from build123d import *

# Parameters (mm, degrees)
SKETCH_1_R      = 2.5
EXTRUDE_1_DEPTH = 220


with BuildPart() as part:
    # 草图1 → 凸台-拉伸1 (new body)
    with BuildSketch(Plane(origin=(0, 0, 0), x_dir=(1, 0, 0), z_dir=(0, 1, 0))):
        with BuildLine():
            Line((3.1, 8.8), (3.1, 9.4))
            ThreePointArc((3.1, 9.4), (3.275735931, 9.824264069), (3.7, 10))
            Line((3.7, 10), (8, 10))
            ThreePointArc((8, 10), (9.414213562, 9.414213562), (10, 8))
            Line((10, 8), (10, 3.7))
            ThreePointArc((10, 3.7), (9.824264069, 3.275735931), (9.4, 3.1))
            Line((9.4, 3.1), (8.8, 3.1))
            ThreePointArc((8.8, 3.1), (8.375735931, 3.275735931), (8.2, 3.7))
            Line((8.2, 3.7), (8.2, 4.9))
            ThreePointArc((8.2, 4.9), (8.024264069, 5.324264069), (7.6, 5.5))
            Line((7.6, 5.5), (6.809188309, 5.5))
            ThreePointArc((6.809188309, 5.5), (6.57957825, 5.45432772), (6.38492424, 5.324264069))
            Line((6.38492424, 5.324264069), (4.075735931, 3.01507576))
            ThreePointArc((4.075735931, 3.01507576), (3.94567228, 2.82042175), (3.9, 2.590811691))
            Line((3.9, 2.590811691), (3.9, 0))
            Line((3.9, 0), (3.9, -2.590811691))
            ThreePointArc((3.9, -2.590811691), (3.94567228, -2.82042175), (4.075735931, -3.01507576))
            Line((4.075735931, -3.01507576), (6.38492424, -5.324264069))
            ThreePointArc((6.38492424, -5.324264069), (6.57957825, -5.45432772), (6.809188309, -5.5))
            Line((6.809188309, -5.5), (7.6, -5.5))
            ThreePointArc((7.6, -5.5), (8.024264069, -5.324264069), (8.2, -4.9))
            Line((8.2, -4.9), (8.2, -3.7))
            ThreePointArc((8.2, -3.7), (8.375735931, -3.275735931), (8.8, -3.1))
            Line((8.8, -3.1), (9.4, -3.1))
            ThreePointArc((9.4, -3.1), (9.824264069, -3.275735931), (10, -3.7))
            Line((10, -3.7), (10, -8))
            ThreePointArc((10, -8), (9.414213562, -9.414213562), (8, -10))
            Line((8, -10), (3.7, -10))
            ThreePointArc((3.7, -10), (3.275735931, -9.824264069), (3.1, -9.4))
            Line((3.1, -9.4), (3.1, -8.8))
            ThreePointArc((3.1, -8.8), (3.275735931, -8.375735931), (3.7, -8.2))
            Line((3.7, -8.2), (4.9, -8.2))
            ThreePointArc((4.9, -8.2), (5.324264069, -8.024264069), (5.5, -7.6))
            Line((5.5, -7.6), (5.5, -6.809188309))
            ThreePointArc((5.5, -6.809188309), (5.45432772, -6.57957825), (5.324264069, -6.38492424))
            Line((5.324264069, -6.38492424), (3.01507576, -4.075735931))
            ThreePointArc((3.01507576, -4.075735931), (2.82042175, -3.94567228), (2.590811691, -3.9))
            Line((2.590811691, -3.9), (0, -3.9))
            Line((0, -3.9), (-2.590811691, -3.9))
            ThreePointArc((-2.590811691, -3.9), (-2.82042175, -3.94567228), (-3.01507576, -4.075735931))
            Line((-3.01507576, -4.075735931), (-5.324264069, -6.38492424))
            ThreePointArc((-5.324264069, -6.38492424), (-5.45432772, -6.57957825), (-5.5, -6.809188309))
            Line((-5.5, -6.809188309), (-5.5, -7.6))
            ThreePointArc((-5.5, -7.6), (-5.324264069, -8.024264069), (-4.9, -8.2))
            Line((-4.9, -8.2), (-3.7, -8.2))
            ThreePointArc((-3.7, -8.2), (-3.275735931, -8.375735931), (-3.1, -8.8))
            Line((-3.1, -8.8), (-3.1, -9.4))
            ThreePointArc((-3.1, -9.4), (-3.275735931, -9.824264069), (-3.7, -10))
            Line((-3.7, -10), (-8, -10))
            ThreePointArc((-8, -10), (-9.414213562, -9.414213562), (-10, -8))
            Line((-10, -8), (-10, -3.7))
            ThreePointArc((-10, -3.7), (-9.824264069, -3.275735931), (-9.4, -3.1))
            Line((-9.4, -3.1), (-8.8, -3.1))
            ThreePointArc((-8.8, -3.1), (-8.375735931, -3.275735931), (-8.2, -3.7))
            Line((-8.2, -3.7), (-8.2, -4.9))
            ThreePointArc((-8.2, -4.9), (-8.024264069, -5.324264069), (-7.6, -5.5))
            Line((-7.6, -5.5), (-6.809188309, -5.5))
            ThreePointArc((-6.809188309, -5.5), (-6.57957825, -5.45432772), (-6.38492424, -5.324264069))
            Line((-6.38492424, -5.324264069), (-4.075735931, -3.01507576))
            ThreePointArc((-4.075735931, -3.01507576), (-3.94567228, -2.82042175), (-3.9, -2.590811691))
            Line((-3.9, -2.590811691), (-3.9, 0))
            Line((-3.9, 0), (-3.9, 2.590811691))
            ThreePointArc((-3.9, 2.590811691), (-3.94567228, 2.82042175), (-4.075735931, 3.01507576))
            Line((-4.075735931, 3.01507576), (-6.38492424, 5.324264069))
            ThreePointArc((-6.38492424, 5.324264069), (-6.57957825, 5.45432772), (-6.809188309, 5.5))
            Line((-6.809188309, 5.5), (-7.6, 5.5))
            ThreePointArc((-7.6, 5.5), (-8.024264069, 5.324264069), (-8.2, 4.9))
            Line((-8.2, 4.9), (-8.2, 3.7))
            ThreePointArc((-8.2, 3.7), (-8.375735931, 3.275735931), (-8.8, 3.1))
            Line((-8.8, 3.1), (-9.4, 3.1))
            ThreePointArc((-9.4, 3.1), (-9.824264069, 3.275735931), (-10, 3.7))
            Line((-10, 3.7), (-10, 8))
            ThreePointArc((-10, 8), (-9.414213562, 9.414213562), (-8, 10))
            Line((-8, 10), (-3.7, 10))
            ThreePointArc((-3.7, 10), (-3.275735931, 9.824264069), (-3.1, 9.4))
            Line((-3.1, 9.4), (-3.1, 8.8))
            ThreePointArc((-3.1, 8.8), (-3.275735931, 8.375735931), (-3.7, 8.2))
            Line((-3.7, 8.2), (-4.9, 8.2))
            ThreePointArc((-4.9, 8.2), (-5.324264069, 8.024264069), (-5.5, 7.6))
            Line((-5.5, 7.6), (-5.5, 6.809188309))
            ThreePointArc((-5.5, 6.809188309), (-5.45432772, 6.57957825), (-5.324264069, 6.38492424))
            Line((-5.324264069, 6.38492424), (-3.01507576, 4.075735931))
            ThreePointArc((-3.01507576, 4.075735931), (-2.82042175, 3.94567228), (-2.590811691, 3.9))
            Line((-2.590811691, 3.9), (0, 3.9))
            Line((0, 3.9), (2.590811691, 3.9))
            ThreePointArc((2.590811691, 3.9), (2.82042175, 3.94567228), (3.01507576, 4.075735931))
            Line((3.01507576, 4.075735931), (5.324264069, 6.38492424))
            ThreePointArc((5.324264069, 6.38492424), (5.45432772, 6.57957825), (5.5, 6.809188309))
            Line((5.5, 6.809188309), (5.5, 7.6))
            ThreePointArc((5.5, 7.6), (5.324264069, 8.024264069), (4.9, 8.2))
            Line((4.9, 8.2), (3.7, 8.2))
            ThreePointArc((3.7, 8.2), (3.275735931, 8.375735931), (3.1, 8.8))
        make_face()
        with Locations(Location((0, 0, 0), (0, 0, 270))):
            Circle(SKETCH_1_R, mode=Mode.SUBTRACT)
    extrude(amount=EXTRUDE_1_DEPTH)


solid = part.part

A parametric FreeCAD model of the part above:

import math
import FreeCAD as App
import Part
import Sketcher
from FreeCAD import Vector
Q = App.Units.Quantity

doc = App.newDocument("Part")
body = doc.addObject("PartDesign::Body", "Body")

# Sketch on XZ plane
sketch1 = body.newObject("Sketcher::SketchObject", "Sketch")
sketch1.AttachmentSupport = (doc.getObject("XZ_Plane"), [""])
sketch1.MapMode = "FlatFace"
sketch1.addGeometry([
    Part.LineSegment(Vector(3.1, -9.4, 0), Vector(3.1, -8.8, 0)),  # 0
    Part.ArcOfCircle(Part.Circle(Vector(3.7, -8.8, 0), Vector(0, 0, 1), 0.6), math.radians(90), math.radians(180)),  # 1
    Part.LineSegment(Vector(3.7, -8.2, 0), Vector(4.9, -8.2, 0)),  # 2
    Part.ArcOfCircle(Part.Circle(Vector(4.9, -7.6, 0), Vector(0, 0, 1), 0.6), math.radians(-90), math.radians(0)),  # 3
    Part.LineSegment(Vector(5.5, -7.6, 0), Vector(5.5, -6.81, 0)),  # 4
    Part.ArcOfCircle(Part.Circle(Vector(4.9, -6.81, 0), Vector(0, 0, 1), 0.6), math.radians(0), math.radians(45)),  # 5
    Part.LineSegment(Vector(5.32, -6.38, 0), Vector(3.02, -4.08, 0)),  # 6
    Part.ArcOfCircle(Part.Circle(Vector(2.59, -4.5, 0), Vector(0, 0, 1), 0.6), math.radians(45), math.radians(90)),  # 7
    Part.LineSegment(Vector(2.59, -3.9, 0), Vector(-2.59, -3.9, 0)),  # 8
    Part.ArcOfCircle(Part.Circle(Vector(-2.59, -4.5, 0), Vector(0, 0, 1), 0.6), math.radians(90), math.radians(135)),  # 9
    Part.LineSegment(Vector(-3.02, -4.08, 0), Vector(-5.32, -6.38, 0)),  # 10
    Part.ArcOfCircle(Part.Circle(Vector(-4.9, -6.81, 0), Vector(0, 0, 1), 0.6), math.radians(135), math.radians(180)),  # 11
    Part.LineSegment(Vector(-5.5, -6.81, 0), Vector(-5.5, -7.6, 0)),  # 12
    Part.ArcOfCircle(Part.Circle(Vector(-4.9, -7.6, 0), Vector(0, 0, 1), 0.6), math.radians(180), math.radians(270)),  # 13
    Part.LineSegment(Vector(-4.9, -8.2, 0), Vector(-3.7, -8.2, 0)),  # 14
    Part.ArcOfCircle(Part.Circle(Vector(-3.7, -8.8, 0), Vector(0, 0, 1), 0.6), math.radians(0), math.radians(90)),  # 15
    Part.LineSegment(Vector(-3.1, -8.8, 0), Vector(-3.1, -9.4, 0)),  # 16
    Part.ArcOfCircle(Part.Circle(Vector(-3.7, -9.4, 0), Vector(0, 0, 1), 0.6), math.radians(-90), math.radians(0)),  # 17
    Part.LineSegment(Vector(-3.7, -10, 0), Vector(-8, -10, 0)),  # 18
    Part.ArcOfCircle(Part.Circle(Vector(-8, -8, 0), Vector(0, 0, 1), 2), math.radians(-180), math.radians(-90)),  # 19
    Part.LineSegment(Vector(-10, -8, 0), Vector(-10, -3.7, 0)),  # 20
    Part.ArcOfCircle(Part.Circle(Vector(-9.4, -3.7, 0), Vector(0, 0, 1), 0.6), math.radians(90), math.radians(180)),  # 21
    Part.LineSegment(Vector(-9.4, -3.1, 0), Vector(-8.8, -3.1, 0)),  # 22
    Part.ArcOfCircle(Part.Circle(Vector(-8.8, -3.7, 0), Vector(0, 0, 1), 0.6), math.radians(0), math.radians(90)),  # 23
    Part.LineSegment(Vector(-8.2, -3.7, 0), Vector(-8.2, -4.9, 0)),  # 24
    Part.ArcOfCircle(Part.Circle(Vector(-7.6, -4.9, 0), Vector(0, 0, 1), 0.6), math.radians(180), math.radians(270)),  # 25
    Part.LineSegment(Vector(-7.6, -5.5, 0), Vector(-6.81, -5.5, 0)),  # 26
    Part.ArcOfCircle(Part.Circle(Vector(-6.81, -4.9, 0), Vector(0, 0, 1), 0.6), math.radians(-90), math.radians(-45)),  # 27
    Part.LineSegment(Vector(-6.38, -5.32, 0), Vector(-4.08, -3.02, 0)),  # 28
    Part.ArcOfCircle(Part.Circle(Vector(-4.5, -2.59, 0), Vector(0, 0, 1), 0.6), math.radians(-45), math.radians(0)),  # 29
    Part.LineSegment(Vector(-3.9, -2.59, 0), Vector(-3.9, 2.59, 0)),  # 30
    Part.ArcOfCircle(Part.Circle(Vector(-4.5, 2.59, 0), Vector(0, 0, 1), 0.6), math.radians(0), math.radians(45)),  # 31
    Part.LineSegment(Vector(-4.08, 3.02, 0), Vector(-6.38, 5.32, 0)),  # 32
    Part.ArcOfCircle(Part.Circle(Vector(-6.81, 4.9, 0), Vector(0, 0, 1), 0.6), math.radians(45), math.radians(90)),  # 33
    Part.LineSegment(Vector(-6.81, 5.5, 0), Vector(-7.6, 5.5, 0)),  # 34
    Part.ArcOfCircle(Part.Circle(Vector(-7.6, 4.9, 0), Vector(0, 0, 1), 0.6), math.radians(90), math.radians(180)),  # 35
    Part.LineSegment(Vector(-8.2, 4.9, 0), Vector(-8.2, 3.7, 0)),  # 36
    Part.ArcOfCircle(Part.Circle(Vector(-8.8, 3.7, 0), Vector(0, 0, 1), 0.6), math.radians(-90), math.radians(0)),  # 37
    Part.LineSegment(Vector(-8.8, 3.1, 0), Vector(-9.4, 3.1, 0)),  # 38
    Part.ArcOfCircle(Part.Circle(Vector(-9.4, 3.7, 0), Vector(0, 0, 1), 0.6), math.radians(180), math.radians(270)),  # 39
    Part.LineSegment(Vector(-10, 3.7, 0), Vector(-10, 8, 0)),  # 40
    Part.ArcOfCircle(Part.Circle(Vector(-8, 8, 0), Vector(0, 0, 1), 2), math.radians(90), math.radians(180)),  # 41
    Part.LineSegment(Vector(-8, 10, 0), Vector(-3.7, 10, 0)),  # 42
    Part.ArcOfCircle(Part.Circle(Vector(-3.7, 9.4, 0), Vector(0, 0, 1), 0.6), math.radians(0), math.radians(90)),  # 43
    Part.LineSegment(Vector(-3.1, 9.4, 0), Vector(-3.1, 8.8, 0)),  # 44
    Part.ArcOfCircle(Part.Circle(Vector(-3.7, 8.8, 0), Vector(0, 0, 1), 0.6), math.radians(-90), math.radians(0)),  # 45
    Part.LineSegment(Vector(-3.7, 8.2, 0), Vector(-4.9, 8.2, 0)),  # 46
    Part.ArcOfCircle(Part.Circle(Vector(-4.9, 7.6, 0), Vector(0, 0, 1), 0.6), math.radians(90), math.radians(180)),  # 47
    Part.LineSegment(Vector(-5.5, 7.6, 0), Vector(-5.5, 6.81, 0)),  # 48
    Part.ArcOfCircle(Part.Circle(Vector(-4.9, 6.81, 0), Vector(0, 0, 1), 0.6), math.radians(180), math.radians(225)),  # 49
    Part.LineSegment(Vector(-5.32, 6.38, 0), Vector(-3.02, 4.08, 0)),  # 50
    Part.ArcOfCircle(Part.Circle(Vector(-2.59, 4.5, 0), Vector(0, 0, 1), 0.6), math.radians(-135), math.radians(-90)),  # 51
    Part.LineSegment(Vector(-2.59, 3.9, 0), Vector(2.59, 3.9, 0)),  # 52
    Part.ArcOfCircle(Part.Circle(Vector(2.59, 4.5, 0), Vector(0, 0, 1), 0.6), math.radians(-90), math.radians(-45)),  # 53
    Part.LineSegment(Vector(3.02, 4.08, 0), Vector(5.32, 6.38, 0)),  # 54
    Part.ArcOfCircle(Part.Circle(Vector(4.9, 6.81, 0), Vector(0, 0, 1), 0.6), math.radians(-45), math.radians(0)),  # 55
    Part.LineSegment(Vector(5.5, 6.81, 0), Vector(5.5, 7.6, 0)),  # 56
    Part.ArcOfCircle(Part.Circle(Vector(4.9, 7.6, 0), Vector(0, 0, 1), 0.6), math.radians(0), math.radians(90)),  # 57
    Part.LineSegment(Vector(4.9, 8.2, 0), Vector(3.7, 8.2, 0)),  # 58
    Part.ArcOfCircle(Part.Circle(Vector(3.7, 8.8, 0), Vector(0, 0, 1), 0.6), math.radians(180), math.radians(270)),  # 59
    Part.LineSegment(Vector(3.1, 8.8, 0), Vector(3.1, 9.4, 0)),  # 60
    Part.ArcOfCircle(Part.Circle(Vector(3.7, 9.4, 0), Vector(0, 0, 1), 0.6), math.radians(90), math.radians(180)),  # 61
    Part.LineSegment(Vector(3.7, 10, 0), Vector(8, 10, 0)),  # 62
    Part.ArcOfCircle(Part.Circle(Vector(8, 8, 0), Vector(0, 0, 1), 2), math.radians(0), math.radians(90)),  # 63
    Part.LineSegment(Vector(10, 8, 0), Vector(10, 3.7, 0)),  # 64
    Part.ArcOfCircle(Part.Circle(Vector(9.4, 3.7, 0), Vector(0, 0, 1), 0.6), math.radians(-90), math.radians(0)),  # 65
    Part.LineSegment(Vector(9.4, 3.1, 0), Vector(8.8, 3.1, 0)),  # 66
    Part.ArcOfCircle(Part.Circle(Vector(8.8, 3.7, 0), Vector(0, 0, 1), 0.6), math.radians(180), math.radians(270)),  # 67
    Part.LineSegment(Vector(8.2, 3.7, 0), Vector(8.2, 4.9, 0)),  # 68
    Part.ArcOfCircle(Part.Circle(Vector(7.6, 4.9, 0), Vector(0, 0, 1), 0.6), math.radians(0), math.radians(90)),  # 69
    Part.LineSegment(Vector(7.6, 5.5, 0), Vector(6.81, 5.5, 0)),  # 70
    Part.ArcOfCircle(Part.Circle(Vector(6.81, 4.9, 0), Vector(0, 0, 1), 0.6), math.radians(90), math.radians(135)),  # 71
    Part.LineSegment(Vector(6.38, 5.32, 0), Vector(4.08, 3.02, 0)),  # 72
    Part.ArcOfCircle(Part.Circle(Vector(4.5, 2.59, 0), Vector(0, 0, 1), 0.6), math.radians(135), math.radians(180)),  # 73
    Part.LineSegment(Vector(3.9, 2.59, 0), Vector(3.9, -2.59, 0)),  # 74
    Part.ArcOfCircle(Part.Circle(Vector(4.5, -2.59, 0), Vector(0, 0, 1), 0.6), math.radians(180), math.radians(225)),  # 75
    Part.LineSegment(Vector(4.08, -3.02, 0), Vector(6.38, -5.32, 0)),  # 76
    Part.ArcOfCircle(Part.Circle(Vector(6.81, -4.9, 0), Vector(0, 0, 1), 0.6), math.radians(-135), math.radians(-90)),  # 77
    Part.LineSegment(Vector(6.81, -5.5, 0), Vector(7.6, -5.5, 0)),  # 78
    Part.ArcOfCircle(Part.Circle(Vector(7.6, -4.9, 0), Vector(0, 0, 1), 0.6), math.radians(-90), math.radians(0)),  # 79
    Part.LineSegment(Vector(8.2, -4.9, 0), Vector(8.2, -3.7, 0)),  # 80
    Part.ArcOfCircle(Part.Circle(Vector(8.8, -3.7, 0), Vector(0, 0, 1), 0.6), math.radians(90), math.radians(180)),  # 81
    Part.LineSegment(Vector(8.8, -3.1, 0), Vector(9.4, -3.1, 0)),  # 82
    Part.ArcOfCircle(Part.Circle(Vector(9.4, -3.7, 0), Vector(0, 0, 1), 0.6), math.radians(0), math.radians(90)),  # 83
    Part.LineSegment(Vector(10, -3.7, 0), Vector(10, -8, 0)),  # 84
    Part.ArcOfCircle(Part.Circle(Vector(8, -8, 0), Vector(0, 0, 1), 2), math.radians(-90), math.radians(0)),  # 85
    Part.LineSegment(Vector(8, -10, 0), Vector(3.7, -10, 0)),  # 86
    Part.ArcOfCircle(Part.Circle(Vector(3.7, -9.4, 0), Vector(0, 0, 1), 0.6), math.radians(180), math.radians(270)),  # 87
    Part.Circle(Vector(0, 0, 0), Vector(0, 0, 1), 2.5),  # 88
], False)
sketch1.addConstraint([
    Sketcher.Constraint("Tangent", 0, 2, 1, 2),
    Sketcher.Constraint("Tangent", 1, 1, 2, 1),
    Sketcher.Constraint("Tangent", 2, 2, 3, 1),
    Sketcher.Constraint("Tangent", 3, 2, 4, 1),
    Sketcher.Constraint("Tangent", 4, 2, 5, 1),
    Sketcher.Constraint("Tangent", 5, 2, 6, 1),
    Sketcher.Constraint("Tangent", 6, 2, 7, 1),
    Sketcher.Constraint("Tangent", 7, 2, 8, 1),
    Sketcher.Constraint("Tangent", 8, 2, 9, 1),
    Sketcher.Constraint("Tangent", 9, 2, 10, 1),
    Sketcher.Constraint("Tangent", 10, 2, 11, 1),
    Sketcher.Constraint("Tangent", 11, 2, 12, 1),
    Sketcher.Constraint("Tangent", 12, 2, 13, 1),
    Sketcher.Constraint("Tangent", 13, 2, 14, 1),
    Sketcher.Constraint("Tangent", 14, 2, 15, 2),
    Sketcher.Constraint("Tangent", 15, 1, 16, 1),
    Sketcher.Constraint("Tangent", 16, 2, 17, 2),
    Sketcher.Constraint("Tangent", 17, 1, 18, 1),
    Sketcher.Constraint("Tangent", 18, 2, 19, 2),
    Sketcher.Constraint("Tangent", 19, 1, 20, 1),
    Sketcher.Constraint("Tangent", 20, 2, 21, 2),
    Sketcher.Constraint("Tangent", 21, 1, 22, 1),
    Sketcher.Constraint("Tangent", 22, 2, 23, 2),
    Sketcher.Constraint("Tangent", 23, 1, 24, 1),
    Sketcher.Constraint("Tangent", 24, 2, 25, 1),
    Sketcher.Constraint("Tangent", 25, 2, 26, 1),
    Sketcher.Constraint("Tangent", 26, 2, 27, 1),
    Sketcher.Constraint("Tangent", 27, 2, 28, 1),
    Sketcher.Constraint("Tangent", 28, 2, 29, 1),
    Sketcher.Constraint("Tangent", 29, 2, 30, 1),
    Sketcher.Constraint("Tangent", 30, 2, 31, 1),
    Sketcher.Constraint("Tangent", 31, 2, 32, 1),
    Sketcher.Constraint("Tangent", 32, 2, 33, 1),
    Sketcher.Constraint("Tangent", 33, 2, 34, 1),
    Sketcher.Constraint("Tangent", 34, 2, 35, 1),
    Sketcher.Constraint("Tangent", 35, 2, 36, 1),
    Sketcher.Constraint("Tangent", 36, 2, 37, 2),
    Sketcher.Constraint("Tangent", 37, 1, 38, 1),
    Sketcher.Constraint("Tangent", 38, 2, 39, 2),
    Sketcher.Constraint("Tangent", 39, 1, 40, 1),
    Sketcher.Constraint("Tangent", 40, 2, 41, 2),
    Sketcher.Constraint("Tangent", 41, 1, 42, 1),
    Sketcher.Constraint("Tangent", 42, 2, 43, 2),
    Sketcher.Constraint("Tangent", 43, 1, 44, 1),
    Sketcher.Constraint("Tangent", 44, 2, 45, 2),
    Sketcher.Constraint("Tangent", 45, 1, 46, 1),
    Sketcher.Constraint("Tangent", 46, 2, 47, 1),
    Sketcher.Constraint("Tangent", 47, 2, 48, 1),
    Sketcher.Constraint("Tangent", 48, 2, 49, 1),
    Sketcher.Constraint("Tangent", 49, 2, 50, 1),
    Sketcher.Constraint("Tangent", 50, 2, 51, 1),
    Sketcher.Constraint("Tangent", 51, 2, 52, 1),
    Sketcher.Constraint("Tangent", 52, 2, 53, 1),
    Sketcher.Constraint("Tangent", 53, 2, 54, 1),
    Sketcher.Constraint("Tangent", 54, 2, 55, 1),
    Sketcher.Constraint("Tangent", 55, 2, 56, 1),
    Sketcher.Constraint("Tangent", 56, 2, 57, 1),
    Sketcher.Constraint("Tangent", 57, 2, 58, 1),
    Sketcher.Constraint("Tangent", 58, 2, 59, 2),
    Sketcher.Constraint("Tangent", 59, 1, 60, 1),
    Sketcher.Constraint("Tangent", 60, 2, 61, 2),
    Sketcher.Constraint("Tangent", 61, 1, 62, 1),
    Sketcher.Constraint("Tangent", 62, 2, 63, 2),
    Sketcher.Constraint("Tangent", 63, 1, 64, 1),
    Sketcher.Constraint("Tangent", 64, 2, 65, 2),
    Sketcher.Constraint("Tangent", 65, 1, 66, 1),
    Sketcher.Constraint("Tangent", 66, 2, 67, 2),
    Sketcher.Constraint("Tangent", 67, 1, 68, 1),
    Sketcher.Constraint("Tangent", 68, 2, 69, 1),
    Sketcher.Constraint("Tangent", 69, 2, 70, 1),
    Sketcher.Constraint("Tangent", 70, 2, 71, 1),
    Sketcher.Constraint("Tangent", 71, 2, 72, 1),
    Sketcher.Constraint("Tangent", 72, 2, 73, 1),
    Sketcher.Constraint("Tangent", 73, 2, 74, 1),
    Sketcher.Constraint("Tangent", 74, 2, 75, 1),
    Sketcher.Constraint("Tangent", 75, 2, 76, 1),
    Sketcher.Constraint("Tangent", 76, 2, 77, 1),
    Sketcher.Constraint("Tangent", 77, 2, 78, 1),
    Sketcher.Constraint("Tangent", 78, 2, 79, 1),
    Sketcher.Constraint("Tangent", 79, 2, 80, 1),
    Sketcher.Constraint("Tangent", 80, 2, 81, 2),
    Sketcher.Constraint("Tangent", 81, 1, 82, 1),
    Sketcher.Constraint("Tangent", 82, 2, 83, 2),
    Sketcher.Constraint("Tangent", 83, 1, 84, 1),
    Sketcher.Constraint("Tangent", 84, 2, 85, 2),
    Sketcher.Constraint("Tangent", 85, 1, 86, 1),
    Sketcher.Constraint("Tangent", 86, 2, 87, 2),
    Sketcher.Constraint("Tangent", 87, 1, 0, 1),
    Sketcher.Constraint("Vertical", 0),
    Sketcher.Constraint("Horizontal", 2),
    Sketcher.Constraint("Vertical", 4),
    Sketcher.Constraint("Horizontal", 8),
    Sketcher.Constraint("Vertical", 12),
    Sketcher.Constraint("Horizontal", 14),
    Sketcher.Constraint("Vertical", 16),
    Sketcher.Constraint("Horizontal", 18),
    Sketcher.Constraint("Vertical", 20),
    Sketcher.Constraint("Horizontal", 22),
    Sketcher.Constraint("Vertical", 24),
    Sketcher.Constraint("Horizontal", 26),
    Sketcher.Constraint("Vertical", 30),
    Sketcher.Constraint("Horizontal", 34),
    Sketcher.Constraint("Vertical", 36),
    Sketcher.Constraint("Horizontal", 38),
    Sketcher.Constraint("Vertical", 40),
    Sketcher.Constraint("Horizontal", 42),
    Sketcher.Constraint("Vertical", 44),
    Sketcher.Constraint("Horizontal", 46),
    Sketcher.Constraint("Vertical", 48),
    Sketcher.Constraint("Horizontal", 52),
    Sketcher.Constraint("Vertical", 56),
    Sketcher.Constraint("Horizontal", 58),
    Sketcher.Constraint("Vertical", 60),
    Sketcher.Constraint("Horizontal", 62),
    Sketcher.Constraint("Vertical", 64),
    Sketcher.Constraint("Horizontal", 66),
    Sketcher.Constraint("Vertical", 68),
    Sketcher.Constraint("Horizontal", 70),
    Sketcher.Constraint("Vertical", 74),
    Sketcher.Constraint("Horizontal", 78),
    Sketcher.Constraint("Vertical", 80),
    Sketcher.Constraint("Horizontal", 82),
    Sketcher.Constraint("Vertical", 84),
    Sketcher.Constraint("Horizontal", 86),
    Sketcher.Constraint("Coincident", 88, 3, -1, 1),
    Sketcher.Constraint("Equal", 1, 3),
    Sketcher.Constraint("Equal", 3, 5),
    Sketcher.Constraint("Equal", 5, 7),
    Sketcher.Constraint("Equal", 7, 9),
    Sketcher.Constraint("Equal", 9, 11),
    Sketcher.Constraint("Equal", 11, 13),
    Sketcher.Constraint("Equal", 13, 15),
    Sketcher.Constraint("Equal", 15, 17),
    Sketcher.Constraint("Equal", 17, 21),
    Sketcher.Constraint("Equal", 21, 23),
    Sketcher.Constraint("Equal", 23, 25),
    Sketcher.Constraint("Equal", 25, 27),
    Sketcher.Constraint("Equal", 27, 29),
    Sketcher.Constraint("Equal", 29, 31),
    Sketcher.Constraint("Equal", 31, 33),
    Sketcher.Constraint("Equal", 33, 35),
    Sketcher.Constraint("Equal", 35, 37),
    Sketcher.Constraint("Equal", 37, 39),
    Sketcher.Constraint("Equal", 19, 41),
    Sketcher.Constraint("Equal", 39, 43),
    Sketcher.Constraint("Equal", 43, 45),
    Sketcher.Constraint("Equal", 45, 47),
    Sketcher.Constraint("Equal", 47, 49),
    Sketcher.Constraint("Equal", 49, 51),
    Sketcher.Constraint("Equal", 51, 53),
    Sketcher.Constraint("Equal", 53, 55),
    Sketcher.Constraint("Equal", 55, 57),
    Sketcher.Constraint("Equal", 57, 59),
    Sketcher.Constraint("Equal", 59, 61),
    Sketcher.Constraint("Equal", 41, 63),
    Sketcher.Constraint("Equal", 61, 65),
    Sketcher.Constraint("Equal", 65, 67),
    Sketcher.Constraint("Equal", 67, 69),
    Sketcher.Constraint("Equal", 69, 71),
    Sketcher.Constraint("Equal", 71, 73),
    Sketcher.Constraint("Equal", 73, 75),
    Sketcher.Constraint("Equal", 75, 77),
    Sketcher.Constraint("Equal", 77, 79),
    Sketcher.Constraint("Equal", 79, 81),
    Sketcher.Constraint("Equal", 81, 83),
    Sketcher.Constraint("Equal", 63, 85),
    Sketcher.Constraint("Equal", 83, 87),
    Sketcher.Constraint("Symmetric", 1, 3, 45, 3, -1, 1),
    Sketcher.Constraint("Symmetric", 5, 3, 49, 3, -1, 1),
    Sketcher.Constraint("Symmetric", 7, 3, 51, 3, -1, 1),
    Sketcher.Constraint("Symmetric", 11, 3, 55, 3, -1, 1),
    Sketcher.Constraint("Symmetric", 15, 3, 59, 3, -1, 1),
    Sketcher.Constraint("Symmetric", 19, 3, 63, 3, -1, 1),
    Sketcher.Constraint("Symmetric", 23, 3, 67, 3, -1, 1),
    Sketcher.Constraint("Symmetric", 27, 3, 71, 3, -1, 1),
    Sketcher.Constraint("Symmetric", 29, 3, 73, 3, -1, 1),
    Sketcher.Constraint("Symmetric", 33, 3, 77, 3, -1, 1),
    Sketcher.Constraint("Symmetric", 37, 3, 81, 3, -1, 1),
    Sketcher.Constraint("Symmetric", 41, 3, 85, 3, -1, 1),
    Sketcher.Constraint("Symmetric", 5, 3, 11, 3, -2),
    Sketcher.Constraint("Symmetric", 1, 3, 15, 3, -2),
    Sketcher.Constraint("Symmetric", 41, 3, 63, 3, -2),
    Sketcher.Constraint("Symmetric", 37, 3, 67, 3, -2),
    Sketcher.Constraint("Symmetric", 33, 3, 71, 3, -2),
    Sketcher.Constraint("Perpendicular", 6, 10),
    Sketcher.Constraint("Parallel", 10, 28),
    Sketcher.Constraint("Perpendicular", 28, 32),
    Sketcher.Constraint("Perpendicular", 50, 54),
    Sketcher.Constraint("Perpendicular", 72, 76),
    Sketcher.Constraint("Horizontal", 31, 3, 73, 3),
    Sketcher.Constraint("Equal", 82, 0),
    Sketcher.Constraint("Equal", 78, 4),
    Sketcher.Constraint("Equal", 86, 20),
    Sketcher.Constraint("Equal", 58, 24),
    Sketcher.Constraint("Equal", 52, 30),
    Sketcher.Constraint("Equal", 10, 28),
    Sketcher.Constraint("Diameter", 88, Q("5 mm")),
    Sketcher.Constraint("Radius", 19, Q("2 mm")),
    Sketcher.Constraint("Radius", 1, Q("0.6 mm")),
    Sketcher.Constraint("DistanceX", 2, 1, 2, 2, Q("1.2 mm")),
    Sketcher.Constraint("DistanceX", 18, 2, 18, 1, Q("4.3 mm")),
    Sketcher.Constraint("DistanceX", 22, 1, 22, 2, Q("0.6 mm")),
    Sketcher.Constraint("DistanceX", 19, 3, -1, 1, Q("8 mm")),
    Sketcher.Constraint("DistanceY", 7, 3, -1, 1, Q("4.5 mm")),
    Sketcher.Constraint("DistanceX", 26, 1, 26, 2, Q("0.790812 mm")),
])
pad1 = body.newObject("PartDesign::Pad", "Pad")
pad1.Profile = sketch1
pad1.Length = 220
pad1.Reversed = True

doc.recompute()
